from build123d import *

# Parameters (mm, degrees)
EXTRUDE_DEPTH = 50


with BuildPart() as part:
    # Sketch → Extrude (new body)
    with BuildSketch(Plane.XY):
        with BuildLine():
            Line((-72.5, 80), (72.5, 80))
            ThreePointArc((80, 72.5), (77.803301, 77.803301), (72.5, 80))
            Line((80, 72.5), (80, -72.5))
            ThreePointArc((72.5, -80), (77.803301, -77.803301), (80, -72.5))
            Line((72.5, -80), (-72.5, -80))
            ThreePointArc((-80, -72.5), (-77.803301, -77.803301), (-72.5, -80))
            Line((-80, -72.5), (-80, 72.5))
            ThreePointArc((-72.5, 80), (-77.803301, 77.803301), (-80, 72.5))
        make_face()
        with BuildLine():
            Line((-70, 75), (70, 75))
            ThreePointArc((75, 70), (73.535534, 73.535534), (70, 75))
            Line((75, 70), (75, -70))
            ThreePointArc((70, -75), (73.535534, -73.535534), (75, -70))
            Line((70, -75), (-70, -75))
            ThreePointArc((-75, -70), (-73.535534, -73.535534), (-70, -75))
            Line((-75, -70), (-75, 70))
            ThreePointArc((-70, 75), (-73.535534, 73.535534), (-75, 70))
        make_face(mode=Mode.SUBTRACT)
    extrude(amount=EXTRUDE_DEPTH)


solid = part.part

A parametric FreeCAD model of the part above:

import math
import FreeCAD as App
import Part
import Sketcher

V = App.Vector
Q = App.Units.Quantity

doc = App.newDocument("Part")
params = doc.addObject("Spreadsheet::Sheet", "Params")
for row, (alias, value) in enumerate([
    ("sketch1_radius", "5 mm"),
    ("sketch1_radius2", "7.5 mm"),
    ("sketch1_width", "145 mm"),
    ("sketch1_width2", "140 mm"),
    ("pad1_length", "50 mm"),
], start=1):
    params.set(f"A{row}", alias)
    params.set(f"B{row}", "=" + value)
    params.setAlias(f"B{row}", alias)

body = doc.addObject("PartDesign::Body", "Body")

sketch1 = doc.addObject("Sketcher::SketchObject", "Sketch")
body.addObject(sketch1)
sketch1.AttachmentSupport = (doc.XY_Plane, [""])
sketch1.MapMode = "FlatFace"
sketch1.addGeometry([
    Part.LineSegment(V(72.5, 80, 0), V(-72.5, 80, 0)),
    Part.ArcOfCircle(Part.Circle(V(-72.5, 72.5, 0), V(0, 0, 1), 7.5), math.radians(90), math.radians(180)),
    Part.LineSegment(V(-80, 72.5, 0), V(-80, -72.5, 0)),
    Part.ArcOfCircle(Part.Circle(V(-72.5, -72.5, 0), V(0, 0, 1), 7.5), math.radians(180), math.radians(270)),
    Part.LineSegment(V(-72.5, -80, 0), V(72.5, -80, 0)),
    Part.ArcOfCircle(Part.Circle(V(72.5, -72.5, 0), V(0, 0, 1), 7.5), math.radians(-90), math.radians(0)),
    Part.LineSegment(V(80, -72.5, 0), V(80, 72.5, 0)),
    Part.ArcOfCircle(Part.Circle(V(72.5, 72.5, 0), V(0, 0, 1), 7.5), math.radians(0), math.radians(90)),
    Part.LineSegment(V(-70, 75, 0), V(70, 75, 0)),
    Part.ArcOfCircle(Part.Circle(V(70, 70, 0), V(0, 0, 1), 5), math.radians(0), math.radians(90)),
    Part.LineSegment(V(75, 70, 0), V(75, -70, 0)),
    Part.ArcOfCircle(Part.Circle(V(70, -70, 0), V(0, 0, 1), 5), math.radians(-90), math.radians(0)),
    Part.LineSegment(V(70, -75, 0), V(-70, -75, 0)),
    Part.ArcOfCircle(Part.Circle(V(-70, -70, 0), V(0, 0, 1), 5), math.radians(180), math.radians(270)),
    Part.LineSegment(V(-75, -70, 0), V(-75, 70, 0)),
    Part.ArcOfCircle(Part.Circle(V(-70, 70, 0), V(0, 0, 1), 5), math.radians(90), math.radians(180)),
], False)
sketch1.addConstraint([
    Sketcher.Constraint("Tangent", 0, 2, 1, 1),
    Sketcher.Constraint("Tangent", 1, 2, 2, 1),
    Sketcher.Constraint("Tangent", 2, 2, 3, 1),
    Sketcher.Constraint("Tangent", 3, 2, 4, 1),
    Sketcher.Constraint("Tangent", 4, 2, 5, 1),
    Sketcher.Constraint("Tangent", 5, 2, 6, 1),
    Sketcher.Constraint("Tangent", 6, 2, 7, 1),
    Sketcher.Constraint("Tangent", 7, 2, 0, 1),
    Sketcher.Constraint("Tangent", 8, 2, 9, 2),
    Sketcher.Constraint("Tangent", 9, 1, 10, 1),
    Sketcher.Constraint("Tangent", 10, 2, 11, 2),
    Sketcher.Constraint("Tangent", 11, 1, 12, 1),
    Sketcher.Constraint("Tangent", 12, 2, 13, 2),
    Sketcher.Constraint("Tangent", 13, 1, 14, 1),
    Sketcher.Constraint("Tangent", 14, 2, 15, 2),
    Sketcher.Constraint("Tangent", 15, 1, 8, 1),
    Sketcher.Constraint("Horizontal", 0),
    Sketcher.Constraint("Vertical", 2),
    Sketcher.Constraint("Horizontal", 4),
    Sketcher.Constraint("Vertical", 6),
    Sketcher.Constraint("Horizontal", 8),
    Sketcher.Constraint("Vertical", 10),
    Sketcher.Constraint("Horizontal", 12),
    Sketcher.Constraint("Vertical", 14),
    Sketcher.Constraint("Equal", 1, 3),
    Sketcher.Constraint("Equal", 3, 5),
    Sketcher.Constraint("Equal", 5, 7),
    Sketcher.Constraint("Equal", 9, 11),
    Sketcher.Constraint("Equal", 11, 13),
    Sketcher.Constraint("Equal", 13, 15),
    Sketcher.Constraint("Symmetric", 1, 3, 5, 3, -1, 1),
    Sketcher.Constraint("Symmetric", 9, 3, 13, 3, -1, 1),
    Sketcher.Constraint("Equal", 4, 2),
    Sketcher.Constraint("Equal", 12, 10),
    Sketcher.Constraint("Radius", 9, Q("5 mm")),
    Sketcher.Constraint("Radius", 1, Q("7.5 mm")),
    Sketcher.Constraint("DistanceX", 0, 2, 0, 1, Q("145 mm")),
    Sketcher.Constraint("DistanceX", 8, 1, 8, 2, Q("140 mm")),
])
sketch1.setExpression("Constraints[34]", "Params.sketch1_radius")
sketch1.setExpression("Constraints[35]", "Params.sketch1_radius2")
sketch1.setExpression("Constraints[36]", "Params.sketch1_width")
sketch1.setExpression("Constraints[37]", "Params.sketch1_width2")
pad1 = doc.addObject("PartDesign::Pad", "Pad")
body.addObject(pad1)
pad1.Profile = sketch1
pad1.setExpression("Length", "Params.pad1_length")

doc.recompute()
